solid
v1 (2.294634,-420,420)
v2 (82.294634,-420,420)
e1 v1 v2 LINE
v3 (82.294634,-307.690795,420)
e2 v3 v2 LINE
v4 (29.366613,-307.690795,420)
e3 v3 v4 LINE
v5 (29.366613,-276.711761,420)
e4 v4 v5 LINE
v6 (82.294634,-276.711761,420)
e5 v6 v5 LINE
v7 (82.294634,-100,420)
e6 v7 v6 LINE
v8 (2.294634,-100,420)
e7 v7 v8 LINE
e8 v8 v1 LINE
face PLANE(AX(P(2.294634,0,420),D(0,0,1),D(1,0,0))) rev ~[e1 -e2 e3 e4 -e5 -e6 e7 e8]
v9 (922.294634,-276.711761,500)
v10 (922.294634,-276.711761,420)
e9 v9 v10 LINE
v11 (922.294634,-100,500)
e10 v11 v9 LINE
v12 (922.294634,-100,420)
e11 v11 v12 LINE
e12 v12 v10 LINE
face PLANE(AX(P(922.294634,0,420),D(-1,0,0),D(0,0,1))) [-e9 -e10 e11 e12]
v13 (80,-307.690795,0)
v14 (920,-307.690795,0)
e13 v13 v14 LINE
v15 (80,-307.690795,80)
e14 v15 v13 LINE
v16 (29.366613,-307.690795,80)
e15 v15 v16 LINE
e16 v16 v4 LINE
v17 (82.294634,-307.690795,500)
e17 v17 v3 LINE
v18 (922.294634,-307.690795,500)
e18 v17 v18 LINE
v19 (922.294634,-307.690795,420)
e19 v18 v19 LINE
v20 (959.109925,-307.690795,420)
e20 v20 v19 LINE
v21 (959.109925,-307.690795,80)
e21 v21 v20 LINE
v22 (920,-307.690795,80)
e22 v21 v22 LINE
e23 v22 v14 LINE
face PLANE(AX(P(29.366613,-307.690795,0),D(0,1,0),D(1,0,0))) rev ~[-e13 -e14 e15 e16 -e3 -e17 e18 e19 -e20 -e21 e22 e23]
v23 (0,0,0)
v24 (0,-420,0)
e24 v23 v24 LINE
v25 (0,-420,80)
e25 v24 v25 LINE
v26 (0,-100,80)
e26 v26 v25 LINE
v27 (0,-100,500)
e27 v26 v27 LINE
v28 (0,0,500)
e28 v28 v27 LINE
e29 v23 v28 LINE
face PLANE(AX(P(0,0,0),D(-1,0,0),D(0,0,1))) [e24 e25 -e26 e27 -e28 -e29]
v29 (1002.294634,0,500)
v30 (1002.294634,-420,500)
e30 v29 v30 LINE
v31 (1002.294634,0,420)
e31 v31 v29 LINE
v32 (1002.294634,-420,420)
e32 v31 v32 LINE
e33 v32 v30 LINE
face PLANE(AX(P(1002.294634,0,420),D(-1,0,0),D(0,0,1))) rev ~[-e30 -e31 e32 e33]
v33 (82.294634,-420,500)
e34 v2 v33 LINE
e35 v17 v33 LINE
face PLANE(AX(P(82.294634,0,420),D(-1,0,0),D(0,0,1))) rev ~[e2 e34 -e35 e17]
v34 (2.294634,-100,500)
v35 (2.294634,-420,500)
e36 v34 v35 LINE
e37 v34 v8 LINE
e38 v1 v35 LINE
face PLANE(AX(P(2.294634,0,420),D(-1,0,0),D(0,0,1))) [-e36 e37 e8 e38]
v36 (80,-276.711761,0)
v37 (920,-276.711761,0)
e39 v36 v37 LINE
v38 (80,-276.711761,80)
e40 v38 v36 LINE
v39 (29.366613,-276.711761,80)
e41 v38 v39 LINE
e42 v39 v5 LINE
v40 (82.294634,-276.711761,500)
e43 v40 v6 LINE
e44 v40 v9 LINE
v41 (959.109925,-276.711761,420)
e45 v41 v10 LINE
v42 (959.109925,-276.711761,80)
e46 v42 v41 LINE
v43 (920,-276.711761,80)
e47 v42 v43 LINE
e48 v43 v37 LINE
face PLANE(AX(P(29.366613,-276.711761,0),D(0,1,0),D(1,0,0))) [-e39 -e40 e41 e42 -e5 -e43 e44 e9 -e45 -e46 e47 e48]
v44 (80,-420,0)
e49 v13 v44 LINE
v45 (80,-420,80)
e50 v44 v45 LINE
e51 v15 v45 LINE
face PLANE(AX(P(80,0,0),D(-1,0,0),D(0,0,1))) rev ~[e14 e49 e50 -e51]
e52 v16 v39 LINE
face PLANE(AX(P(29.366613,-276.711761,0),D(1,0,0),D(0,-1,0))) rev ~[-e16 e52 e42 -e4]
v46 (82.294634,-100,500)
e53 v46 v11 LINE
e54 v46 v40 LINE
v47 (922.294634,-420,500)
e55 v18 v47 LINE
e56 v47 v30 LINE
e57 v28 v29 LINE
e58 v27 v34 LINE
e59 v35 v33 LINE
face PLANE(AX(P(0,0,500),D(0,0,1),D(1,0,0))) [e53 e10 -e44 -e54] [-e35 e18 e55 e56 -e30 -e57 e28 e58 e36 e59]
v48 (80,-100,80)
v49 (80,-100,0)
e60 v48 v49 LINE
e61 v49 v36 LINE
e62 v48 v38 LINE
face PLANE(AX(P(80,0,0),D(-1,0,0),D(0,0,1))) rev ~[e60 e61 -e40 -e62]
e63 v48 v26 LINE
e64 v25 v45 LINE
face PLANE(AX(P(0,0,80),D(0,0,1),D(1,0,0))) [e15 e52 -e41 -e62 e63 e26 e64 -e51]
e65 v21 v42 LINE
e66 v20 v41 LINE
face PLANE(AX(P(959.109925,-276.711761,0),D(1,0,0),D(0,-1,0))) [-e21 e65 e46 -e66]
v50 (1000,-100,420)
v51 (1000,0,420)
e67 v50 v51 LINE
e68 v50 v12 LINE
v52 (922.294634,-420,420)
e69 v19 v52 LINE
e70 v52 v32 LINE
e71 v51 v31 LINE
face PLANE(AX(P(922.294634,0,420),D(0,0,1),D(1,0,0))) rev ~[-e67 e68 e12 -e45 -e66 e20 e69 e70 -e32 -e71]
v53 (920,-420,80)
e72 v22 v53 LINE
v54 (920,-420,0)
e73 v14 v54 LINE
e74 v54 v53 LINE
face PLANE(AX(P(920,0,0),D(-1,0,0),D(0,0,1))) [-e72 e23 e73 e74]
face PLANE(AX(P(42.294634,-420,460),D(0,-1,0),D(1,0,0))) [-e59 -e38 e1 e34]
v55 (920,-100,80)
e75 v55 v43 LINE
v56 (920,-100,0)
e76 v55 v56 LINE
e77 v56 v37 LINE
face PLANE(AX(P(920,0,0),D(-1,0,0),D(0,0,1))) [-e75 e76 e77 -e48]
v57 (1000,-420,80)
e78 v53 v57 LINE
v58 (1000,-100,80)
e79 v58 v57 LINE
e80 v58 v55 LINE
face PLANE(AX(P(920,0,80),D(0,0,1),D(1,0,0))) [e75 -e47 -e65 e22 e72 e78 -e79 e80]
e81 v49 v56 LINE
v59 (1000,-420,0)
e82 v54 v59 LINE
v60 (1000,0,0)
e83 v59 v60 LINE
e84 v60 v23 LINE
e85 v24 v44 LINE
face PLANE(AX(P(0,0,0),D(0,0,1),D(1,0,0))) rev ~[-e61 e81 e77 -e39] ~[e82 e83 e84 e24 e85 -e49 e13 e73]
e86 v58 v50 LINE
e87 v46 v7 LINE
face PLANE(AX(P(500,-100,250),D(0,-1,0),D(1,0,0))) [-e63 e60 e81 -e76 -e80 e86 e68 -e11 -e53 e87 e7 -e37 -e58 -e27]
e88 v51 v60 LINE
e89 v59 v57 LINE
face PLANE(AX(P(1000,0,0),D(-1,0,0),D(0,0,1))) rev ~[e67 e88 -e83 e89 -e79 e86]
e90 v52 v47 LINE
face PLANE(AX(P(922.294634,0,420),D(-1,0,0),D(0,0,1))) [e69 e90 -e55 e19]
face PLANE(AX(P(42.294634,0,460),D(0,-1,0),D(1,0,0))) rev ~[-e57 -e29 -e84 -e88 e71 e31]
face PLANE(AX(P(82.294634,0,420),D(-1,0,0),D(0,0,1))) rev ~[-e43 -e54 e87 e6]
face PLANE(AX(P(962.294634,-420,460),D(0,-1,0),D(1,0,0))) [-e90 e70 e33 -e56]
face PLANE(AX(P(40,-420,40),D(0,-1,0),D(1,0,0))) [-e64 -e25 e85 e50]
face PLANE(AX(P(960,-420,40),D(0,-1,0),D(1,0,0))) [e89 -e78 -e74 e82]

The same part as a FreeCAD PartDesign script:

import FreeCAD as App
import Part
import Sketcher

V = App.Vector
Q = App.Units.Quantity

doc = App.newDocument("Part")
params = doc.addObject("Spreadsheet::Sheet", "Params")
for row, (alias, value) in enumerate([
    ("sketch1_width", "1000 mm"),
    ("sketch1_height", "500 mm"),
    ("pad1_length", "100 mm"),
    ("sketch2_width", "80 mm"),
    ("pad2_length", "420 mm"),
    ("pad3_length", "500 mm"),
], start=1):
    params.set(f"A{row}", alias)
    params.set(f"B{row}", "=" + value)
    params.setAlias(f"B{row}", alias)

body = doc.addObject("PartDesign::Body", "Body")

# Sketch on XZ plane
sketch1 = doc.addObject("Sketcher::SketchObject", "Sketch")
body.addObject(sketch1)
sketch1.AttachmentSupport = (doc.XZ_Plane, [""])
sketch1.MapMode = "FlatFace"
sketch1.addGeometry([
    Part.LineSegment(V(0, 500, 0), V(0, 0, 0)),
    Part.LineSegment(V(0, 0, 0), V(1000, 0, 0)),
    Part.LineSegment(V(1000, 0, 0), V(1000, 500, 0)),
    Part.LineSegment(V(1000, 500, 0), V(0, 500, 0)),
], False)
sketch1.addConstraint([
    Sketcher.Constraint("Coincident", 0, 2, 1, 1),
    Sketcher.Constraint("Coincident", 1, 2, 2, 1),
    Sketcher.Constraint("Coincident", 2, 2, 3, 1),
    Sketcher.Constraint("Coincident", 3, 2, 0, 1),
    Sketcher.Constraint("Vertical", 0),
    Sketcher.Constraint("Horizontal", 1),
    Sketcher.Constraint("Vertical", 2),
    Sketcher.Constraint("Horizontal", 3),
    Sketcher.Constraint("Coincident", 0, 2, -1, 1),
    Sketcher.Constraint("DistanceX", 1, 1, 1, 2, Q("1000 mm")),
    Sketcher.Constraint("DistanceY", 0, 2, 0, 1, Q("500 mm")),
])
sketch1.setExpression("Constraints[9]", "Params.sketch1_width")
sketch1.setExpression("Constraints[10]", "Params.sketch1_height")
pad1 = doc.addObject("PartDesign::Pad", "Pad")
body.addObject(pad1)
pad1.Profile = sketch1
pad1.setExpression("Length", "Params.pad1_length")

# Sketch on XZ plane
sketch2 = doc.addObject("Sketcher::SketchObject", "Sketch001")
body.addObject(sketch2)
sketch2.AttachmentSupport = (doc.XZ_Plane, [""])
sketch2.MapMode = "FlatFace"
sketch2.addGeometry([
    Part.LineSegment(V(2.294634, 500, 0), V(2.294634, 420, 0)),  # 0
    Part.LineSegment(V(2.294634, 420, 0), V(82.294634, 420, 0)),  # 1
    Part.LineSegment(V(82.294634, 420, 0), V(82.294634, 500, 0)),  # 2
    Part.LineSegment(V(82.294634, 500, 0), V(2.294634, 500, 0)),  # 3
    Part.LineSegment(V(0, 80, 0), V(0, 0, 0)),  # 4
    Part.LineSegment(V(0, 0, 0), V(80, 0, 0)),  # 5
    Part.LineSegment(V(80, 0, 0), V(80, 80, 0)),  # 6
    Part.LineSegment(V(80, 80, 0), V(0, 80, 0)),  # 7
    Part.LineSegment(V(922.294634, 500, 0), V(922.294634, 420, 0)),  # 8
    Part.LineSegment(V(922.294634, 420, 0), V(1002.294634, 420, 0)),  # 9
    Part.LineSegment(V(1002.294634, 420, 0), V(1002.294634, 500, 0)),  # 10
    Part.LineSegment(V(1002.294634, 500, 0), V(922.294634, 500, 0)),  # 11
    Part.LineSegment(V(920, 80, 0), V(920, 0, 0)),  # 12
    Part.LineSegment(V(920, 0, 0), V(1000, 0, 0)),  # 13
    Part.LineSegment(V(1000, 0, 0), V(1000, 80, 0)),  # 14
    Part.LineSegment(V(1000, 80, 0), V(920, 80, 0)),  # 15
], False)
sketch2.addConstraint([
    Sketcher.Constraint("Coincident", 0, 2, 1, 1),
    Sketcher.Constraint("Coincident", 1, 2, 2, 1),
    Sketcher.Constraint("Coincident", 2, 2, 3, 1),
    Sketcher.Constraint("Coincident", 3, 2, 0, 1),
    Sketcher.Constraint("Coincident", 4, 2, 5, 1),
    Sketcher.Constraint("Coincident", 5, 2, 6, 1),
    Sketcher.Constraint("Coincident", 6, 2, 7, 1),
    Sketcher.Constraint("Coincident", 7, 2, 4, 1),
    Sketcher.Constraint("Coincident", 8, 2, 9, 1),
    Sketcher.Constraint("Coincident", 9, 2, 10, 1),
    Sketcher.Constraint("Coincident", 10, 2, 11, 1),
    Sketcher.Constraint("Coincident", 11, 2, 8, 1),
    Sketcher.Constraint("Coincident", 12, 2, 13, 1),
    Sketcher.Constraint("Coincident", 13, 2, 14, 1),
    Sketcher.Constraint("Coincident", 14, 2, 15, 1),
    Sketcher.Constraint("Coincident", 15, 2, 12, 1),
    Sketcher.Constraint("Vertical", 0),
    Sketcher.Constraint("Horizontal", 1),
    Sketcher.Constraint("Vertical", 2),
    Sketcher.Constraint("Horizontal", 3),
    Sketcher.Constraint("Vertical", 4),
    Sketcher.Constraint("Horizontal", 5),
    Sketcher.Constraint("Vertical", 6),
    Sketcher.Constraint("Horizontal", 7),
    Sketcher.Constraint("Vertical", 8),
    Sketcher.Constraint("Horizontal", 9),
    Sketcher.Constraint("Vertical", 10),
    Sketcher.Constraint("Horizontal", 11),
    Sketcher.Constraint("Vertical", 12),
    Sketcher.Constraint("Horizontal", 13),
    Sketcher.Constraint("Vertical", 14),
    Sketcher.Constraint("Horizontal", 15),
    Sketcher.Constraint("Coincident", 4, 2, -1, 1),
    Sketcher.Constraint("PointOnObject", 12, 2, -1),
    Sketcher.Constraint("Horizontal", 1, 2, 8, 2),
    Sketcher.Constraint("Horizontal", 3, 2, 10, 2),
    Sketcher.Constraint("Horizontal", 7, 2, 14, 2),
    Sketcher.Constraint("Equal", 3, 5),
    Sketcher.Constraint("Equal", 7, 9),
    Sketcher.Constraint("Equal", 11, 13),
    Sketcher.Constraint("Equal", 15, 0),
    Sketcher.Constraint("Equal", 2, 4),
    Sketcher.Constraint("DistanceX", 1, 1, 1, 2, Q("80 mm")),
    Sketcher.Constraint("DistanceY", -1, 1, 0, 2, Q("420 mm")),
    Sketcher.Constraint("DistanceX", -1, 1, 12, 2, Q("920 mm")),
    Sketcher.Constraint("DistanceX", 1, 2, 8, 2, Q("840 mm")),
    Sketcher.Constraint("DistanceX", -1, 1, 0, 2, Q("2.294634 mm")),
])
sketch2.setExpression("Constraints[42]", "Params.sketch2_width")
pad2 = doc.addObject("PartDesign::Pad", "Pad001")
body.addObject(pad2)
pad2.Profile = sketch2
pad2.setExpression("Length", "Params.pad2_length")

# Sketch on XY plane
sketch3 = doc.addObject("Sketcher::SketchObject", "Sketch002")
body.addObject(sketch3)
sketch3.AttachmentSupport = (doc.XY_Plane, [""])
sketch3.MapMode = "FlatFace"
sketch3.addGeometry([
    Part.LineSegment(V(29.366613, -307.690795, 0), V(29.366613, -276.711761, 0)),
    Part.LineSegment(V(29.366613, -276.711761, 0), V(959.109925, -276.711761, 0)),
    Part.LineSegment(V(959.109925, -276.711761, 0), V(959.109925, -307.690795, 0)),
    Part.LineSegment(V(959.109925, -307.690795, 0), V(29.366613, -307.690795, 0)),
], False)
sketch3.addConstraint([
    Sketcher.Constraint("Coincident", 0, 2, 1, 1),
    Sketcher.Constraint("Coincident", 1, 2, 2, 1),
    Sketcher.Constraint("Coincident", 2, 2, 3, 1),
    Sketcher.Constraint("Coincident", 3, 2, 0, 1),
    Sketcher.Constraint("Vertical", 0),
    Sketcher.Constraint("Horizontal", 1),
    Sketcher.Constraint("Vertical", 2),
    Sketcher.Constraint("Horizontal", 3),
    Sketcher.Constraint("DistanceX", 1, 1, 1, 2, Q("929.743311 mm")),
    Sketcher.Constraint("DistanceY", 0, 1, 0, 2, Q("30.979035 mm")),
    Sketcher.Constraint("DistanceY", 0, 2, -1, 1, Q("276.711761 mm")),
    Sketcher.Constraint("DistanceX", -1, 1, 0, 2, Q("29.366613 mm")),
])
pad3 = doc.addObject("PartDesign::Pad", "Pad002")
body.addObject(pad3)
pad3.Profile = sketch3
pad3.setExpression("Length", "Params.pad3_length")

doc.recompute()
